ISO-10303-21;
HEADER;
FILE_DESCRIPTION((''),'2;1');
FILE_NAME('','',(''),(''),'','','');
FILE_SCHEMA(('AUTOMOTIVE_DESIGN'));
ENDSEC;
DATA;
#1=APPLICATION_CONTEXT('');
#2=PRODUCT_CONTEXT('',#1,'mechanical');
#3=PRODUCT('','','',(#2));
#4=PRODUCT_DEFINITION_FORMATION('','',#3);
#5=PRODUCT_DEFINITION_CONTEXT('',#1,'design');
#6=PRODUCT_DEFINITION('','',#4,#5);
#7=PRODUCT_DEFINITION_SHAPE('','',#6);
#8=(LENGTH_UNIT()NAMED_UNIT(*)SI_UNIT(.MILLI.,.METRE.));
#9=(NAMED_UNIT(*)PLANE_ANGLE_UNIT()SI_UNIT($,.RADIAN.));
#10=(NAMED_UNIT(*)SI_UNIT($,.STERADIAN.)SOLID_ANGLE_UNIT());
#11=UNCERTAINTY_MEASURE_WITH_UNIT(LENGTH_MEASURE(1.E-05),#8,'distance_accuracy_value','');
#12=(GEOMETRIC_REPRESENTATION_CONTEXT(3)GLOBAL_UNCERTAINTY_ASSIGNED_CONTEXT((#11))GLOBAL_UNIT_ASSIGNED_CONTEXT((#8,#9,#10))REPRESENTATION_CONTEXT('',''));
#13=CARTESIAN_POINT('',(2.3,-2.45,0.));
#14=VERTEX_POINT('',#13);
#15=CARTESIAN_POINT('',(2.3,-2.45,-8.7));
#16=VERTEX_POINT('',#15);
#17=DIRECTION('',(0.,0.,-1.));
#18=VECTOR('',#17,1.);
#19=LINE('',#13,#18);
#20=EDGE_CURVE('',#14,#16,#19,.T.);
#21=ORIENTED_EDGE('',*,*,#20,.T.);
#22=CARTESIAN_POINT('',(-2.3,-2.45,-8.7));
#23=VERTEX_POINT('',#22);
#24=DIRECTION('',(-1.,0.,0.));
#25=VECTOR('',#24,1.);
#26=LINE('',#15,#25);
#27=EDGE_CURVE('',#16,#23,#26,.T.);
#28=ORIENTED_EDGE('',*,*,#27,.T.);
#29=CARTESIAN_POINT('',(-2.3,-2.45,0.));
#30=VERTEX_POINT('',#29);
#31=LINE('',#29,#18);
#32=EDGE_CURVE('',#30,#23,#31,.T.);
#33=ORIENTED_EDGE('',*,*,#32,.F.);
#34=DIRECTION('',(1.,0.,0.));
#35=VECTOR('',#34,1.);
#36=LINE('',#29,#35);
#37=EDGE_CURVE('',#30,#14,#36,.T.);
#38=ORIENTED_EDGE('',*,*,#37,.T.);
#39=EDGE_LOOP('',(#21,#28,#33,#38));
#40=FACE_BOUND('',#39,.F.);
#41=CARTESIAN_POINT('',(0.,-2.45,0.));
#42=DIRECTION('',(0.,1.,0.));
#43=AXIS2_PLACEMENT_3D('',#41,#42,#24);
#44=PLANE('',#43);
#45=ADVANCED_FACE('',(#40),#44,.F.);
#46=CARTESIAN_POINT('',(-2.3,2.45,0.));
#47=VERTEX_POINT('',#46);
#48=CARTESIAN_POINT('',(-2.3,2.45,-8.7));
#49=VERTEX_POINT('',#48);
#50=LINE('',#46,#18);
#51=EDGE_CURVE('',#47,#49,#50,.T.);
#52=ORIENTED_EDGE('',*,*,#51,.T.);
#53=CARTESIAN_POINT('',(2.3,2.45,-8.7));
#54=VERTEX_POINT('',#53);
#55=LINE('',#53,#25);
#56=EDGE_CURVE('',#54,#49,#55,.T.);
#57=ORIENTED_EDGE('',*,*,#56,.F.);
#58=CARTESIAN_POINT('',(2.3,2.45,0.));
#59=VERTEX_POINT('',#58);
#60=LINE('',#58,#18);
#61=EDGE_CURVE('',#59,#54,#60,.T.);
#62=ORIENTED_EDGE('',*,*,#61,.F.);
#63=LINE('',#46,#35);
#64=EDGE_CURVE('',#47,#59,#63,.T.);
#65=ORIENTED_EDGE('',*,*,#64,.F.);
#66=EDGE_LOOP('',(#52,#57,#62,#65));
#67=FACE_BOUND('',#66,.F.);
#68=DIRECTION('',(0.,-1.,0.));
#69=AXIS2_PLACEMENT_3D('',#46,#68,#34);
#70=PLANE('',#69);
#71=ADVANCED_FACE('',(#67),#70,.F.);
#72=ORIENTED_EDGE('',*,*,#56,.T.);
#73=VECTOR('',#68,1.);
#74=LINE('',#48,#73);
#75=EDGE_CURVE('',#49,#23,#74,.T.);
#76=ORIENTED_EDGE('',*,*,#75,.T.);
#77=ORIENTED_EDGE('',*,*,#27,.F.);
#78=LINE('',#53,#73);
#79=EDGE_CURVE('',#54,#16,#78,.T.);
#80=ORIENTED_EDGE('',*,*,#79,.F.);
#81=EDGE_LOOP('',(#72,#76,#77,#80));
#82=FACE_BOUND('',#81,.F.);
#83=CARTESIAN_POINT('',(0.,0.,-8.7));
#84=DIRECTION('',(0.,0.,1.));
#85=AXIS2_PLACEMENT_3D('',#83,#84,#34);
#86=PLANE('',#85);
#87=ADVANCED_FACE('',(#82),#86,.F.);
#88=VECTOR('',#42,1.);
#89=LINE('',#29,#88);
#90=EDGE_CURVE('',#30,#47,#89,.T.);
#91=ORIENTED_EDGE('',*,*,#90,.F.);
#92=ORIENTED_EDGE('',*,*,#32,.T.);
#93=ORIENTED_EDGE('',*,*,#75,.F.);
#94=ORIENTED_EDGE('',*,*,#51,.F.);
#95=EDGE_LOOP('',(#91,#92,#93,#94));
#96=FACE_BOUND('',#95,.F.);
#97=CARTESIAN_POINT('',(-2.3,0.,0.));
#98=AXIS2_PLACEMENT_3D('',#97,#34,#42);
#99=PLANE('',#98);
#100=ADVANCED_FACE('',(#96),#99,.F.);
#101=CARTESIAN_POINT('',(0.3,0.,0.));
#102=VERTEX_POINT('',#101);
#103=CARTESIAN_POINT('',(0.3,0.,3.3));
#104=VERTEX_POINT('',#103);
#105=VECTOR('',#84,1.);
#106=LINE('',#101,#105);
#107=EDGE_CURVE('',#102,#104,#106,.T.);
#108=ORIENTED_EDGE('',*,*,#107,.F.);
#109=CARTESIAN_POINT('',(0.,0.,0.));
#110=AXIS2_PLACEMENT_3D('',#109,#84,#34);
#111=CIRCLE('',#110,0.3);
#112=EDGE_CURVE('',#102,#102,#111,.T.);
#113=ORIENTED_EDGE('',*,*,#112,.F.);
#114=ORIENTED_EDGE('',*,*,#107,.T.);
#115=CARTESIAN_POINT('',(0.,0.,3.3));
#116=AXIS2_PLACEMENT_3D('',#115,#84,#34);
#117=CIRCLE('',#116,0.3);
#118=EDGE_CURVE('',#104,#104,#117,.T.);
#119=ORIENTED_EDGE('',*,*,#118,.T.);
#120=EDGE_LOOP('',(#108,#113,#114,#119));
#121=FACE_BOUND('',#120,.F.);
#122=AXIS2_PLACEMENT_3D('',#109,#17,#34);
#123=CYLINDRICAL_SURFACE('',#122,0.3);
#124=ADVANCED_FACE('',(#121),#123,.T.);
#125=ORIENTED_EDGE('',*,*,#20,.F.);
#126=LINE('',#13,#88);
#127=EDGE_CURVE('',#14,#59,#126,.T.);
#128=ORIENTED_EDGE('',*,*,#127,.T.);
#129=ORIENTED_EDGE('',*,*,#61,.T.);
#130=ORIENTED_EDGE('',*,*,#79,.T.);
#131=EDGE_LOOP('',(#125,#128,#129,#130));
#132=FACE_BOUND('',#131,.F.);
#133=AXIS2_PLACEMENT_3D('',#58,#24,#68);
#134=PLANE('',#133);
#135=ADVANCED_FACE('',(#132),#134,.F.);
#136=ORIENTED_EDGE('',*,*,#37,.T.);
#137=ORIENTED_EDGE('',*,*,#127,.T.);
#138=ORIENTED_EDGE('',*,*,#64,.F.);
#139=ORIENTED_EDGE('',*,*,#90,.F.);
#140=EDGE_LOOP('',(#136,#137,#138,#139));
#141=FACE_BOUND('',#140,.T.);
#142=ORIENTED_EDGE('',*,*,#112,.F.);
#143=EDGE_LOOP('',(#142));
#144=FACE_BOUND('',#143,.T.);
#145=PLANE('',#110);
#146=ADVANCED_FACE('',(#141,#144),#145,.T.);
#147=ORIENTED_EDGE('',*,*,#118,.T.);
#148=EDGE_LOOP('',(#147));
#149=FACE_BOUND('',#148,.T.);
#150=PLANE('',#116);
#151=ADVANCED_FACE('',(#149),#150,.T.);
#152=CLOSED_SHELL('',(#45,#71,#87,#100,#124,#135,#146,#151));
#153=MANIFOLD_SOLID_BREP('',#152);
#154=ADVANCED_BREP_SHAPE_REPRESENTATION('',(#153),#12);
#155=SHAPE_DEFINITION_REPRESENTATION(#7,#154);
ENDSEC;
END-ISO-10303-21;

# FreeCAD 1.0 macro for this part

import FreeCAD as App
import Part
import Sketcher
Q = App.Units.Quantity

doc = App.newDocument("Part")
params = doc.addObject("Spreadsheet::Sheet", "Params")
for row, (alias, value) in enumerate([
    ("sketch1_width", "4.6 mm"),
    ("sketch1_height", "4.9 mm"),
    ("pad1_length", "8.7 mm"),
    ("sketch2_diameter", "0.6 mm"),
    ("pad2_length", "3.3 mm"),
], start=1):
    params.set(f"A{row}", alias)
    params.set(f"B{row}", "=" + value)
    params.setAlias(f"B{row}", alias)

body = doc.addObject("PartDesign::Body", "Body")

sketch1 = doc.addObject("Sketcher::SketchObject", "Sketch")
body.addObject(sketch1)
sketch1.AttachmentSupport = (doc.XY_Plane, [""])
sketch1.MapMode = "FlatFace"
sketch1.addGeometry([
    Part.LineSegment(App.Vector(-2.3, 2.5, 0), App.Vector(-2.3, -2.5, 0)),
    Part.LineSegment(App.Vector(-2.3, -2.5, 0), App.Vector(2.3, -2.5, 0)),
    Part.LineSegment(App.Vector(2.3, -2.5, 0), App.Vector(2.3, 2.5, 0)),
    Part.LineSegment(App.Vector(2.3, 2.5, 0), App.Vector(-2.3, 2.5, 0)),
], False)
sketch1.addConstraint([
    Sketcher.Constraint("Coincident", 0, 2, 1, 1),
    Sketcher.Constraint("Coincident", 1, 2, 2, 1),
    Sketcher.Constraint("Coincident", 2, 2, 3, 1),
    Sketcher.Constraint("Coincident", 3, 2, 0, 1),
    Sketcher.Constraint("Vertical", 0),
    Sketcher.Constraint("Horizontal", 1),
    Sketcher.Constraint("Vertical", 2),
    Sketcher.Constraint("Horizontal", 3),
    Sketcher.Constraint("Symmetric", 0, 2, 2, 2, -1, 1),
    Sketcher.Constraint("DistanceX", 1, 1, 1, 2, Q("4.6 mm")),
    Sketcher.Constraint("DistanceY", 0, 2, 0, 1, Q("4.9 mm")),
])
sketch1.setExpression("Constraints[9]", "Params.sketch1_width")
sketch1.setExpression("Constraints[10]", "Params.sketch1_height")
pad1 = doc.addObject("PartDesign::Pad", "Pad")
body.addObject(pad1)
pad1.Profile = sketch1
pad1.setExpression("Length", "Params.pad1_length")
pad1.Reversed = True

sketch2 = doc.addObject("Sketcher::SketchObject", "Sketch001")
body.addObject(sketch2)
sketch2.AttachmentSupport = (doc.XY_Plane, [""])
sketch2.MapMode = "FlatFace"
sketch2.addGeometry(Part.Circle(App.Vector(0, 0, 0), App.Vector(0, 0, 1), 0.3), False)
sketch2.addConstraint([
    Sketcher.Constraint("Coincident", 0, 3, -1, 1),
    Sketcher.Constraint("Diameter", 0, Q("0.6 mm")),
])
sketch2.setExpression("Constraints[1]", "Params.sketch2_diameter")
pad2 = doc.addObject("PartDesign::Pad", "Pad001")
body.addObject(pad2)
pad2.Profile = sketch2
pad2.setExpression("Length", "Params.pad2_length")

doc.recompute()
